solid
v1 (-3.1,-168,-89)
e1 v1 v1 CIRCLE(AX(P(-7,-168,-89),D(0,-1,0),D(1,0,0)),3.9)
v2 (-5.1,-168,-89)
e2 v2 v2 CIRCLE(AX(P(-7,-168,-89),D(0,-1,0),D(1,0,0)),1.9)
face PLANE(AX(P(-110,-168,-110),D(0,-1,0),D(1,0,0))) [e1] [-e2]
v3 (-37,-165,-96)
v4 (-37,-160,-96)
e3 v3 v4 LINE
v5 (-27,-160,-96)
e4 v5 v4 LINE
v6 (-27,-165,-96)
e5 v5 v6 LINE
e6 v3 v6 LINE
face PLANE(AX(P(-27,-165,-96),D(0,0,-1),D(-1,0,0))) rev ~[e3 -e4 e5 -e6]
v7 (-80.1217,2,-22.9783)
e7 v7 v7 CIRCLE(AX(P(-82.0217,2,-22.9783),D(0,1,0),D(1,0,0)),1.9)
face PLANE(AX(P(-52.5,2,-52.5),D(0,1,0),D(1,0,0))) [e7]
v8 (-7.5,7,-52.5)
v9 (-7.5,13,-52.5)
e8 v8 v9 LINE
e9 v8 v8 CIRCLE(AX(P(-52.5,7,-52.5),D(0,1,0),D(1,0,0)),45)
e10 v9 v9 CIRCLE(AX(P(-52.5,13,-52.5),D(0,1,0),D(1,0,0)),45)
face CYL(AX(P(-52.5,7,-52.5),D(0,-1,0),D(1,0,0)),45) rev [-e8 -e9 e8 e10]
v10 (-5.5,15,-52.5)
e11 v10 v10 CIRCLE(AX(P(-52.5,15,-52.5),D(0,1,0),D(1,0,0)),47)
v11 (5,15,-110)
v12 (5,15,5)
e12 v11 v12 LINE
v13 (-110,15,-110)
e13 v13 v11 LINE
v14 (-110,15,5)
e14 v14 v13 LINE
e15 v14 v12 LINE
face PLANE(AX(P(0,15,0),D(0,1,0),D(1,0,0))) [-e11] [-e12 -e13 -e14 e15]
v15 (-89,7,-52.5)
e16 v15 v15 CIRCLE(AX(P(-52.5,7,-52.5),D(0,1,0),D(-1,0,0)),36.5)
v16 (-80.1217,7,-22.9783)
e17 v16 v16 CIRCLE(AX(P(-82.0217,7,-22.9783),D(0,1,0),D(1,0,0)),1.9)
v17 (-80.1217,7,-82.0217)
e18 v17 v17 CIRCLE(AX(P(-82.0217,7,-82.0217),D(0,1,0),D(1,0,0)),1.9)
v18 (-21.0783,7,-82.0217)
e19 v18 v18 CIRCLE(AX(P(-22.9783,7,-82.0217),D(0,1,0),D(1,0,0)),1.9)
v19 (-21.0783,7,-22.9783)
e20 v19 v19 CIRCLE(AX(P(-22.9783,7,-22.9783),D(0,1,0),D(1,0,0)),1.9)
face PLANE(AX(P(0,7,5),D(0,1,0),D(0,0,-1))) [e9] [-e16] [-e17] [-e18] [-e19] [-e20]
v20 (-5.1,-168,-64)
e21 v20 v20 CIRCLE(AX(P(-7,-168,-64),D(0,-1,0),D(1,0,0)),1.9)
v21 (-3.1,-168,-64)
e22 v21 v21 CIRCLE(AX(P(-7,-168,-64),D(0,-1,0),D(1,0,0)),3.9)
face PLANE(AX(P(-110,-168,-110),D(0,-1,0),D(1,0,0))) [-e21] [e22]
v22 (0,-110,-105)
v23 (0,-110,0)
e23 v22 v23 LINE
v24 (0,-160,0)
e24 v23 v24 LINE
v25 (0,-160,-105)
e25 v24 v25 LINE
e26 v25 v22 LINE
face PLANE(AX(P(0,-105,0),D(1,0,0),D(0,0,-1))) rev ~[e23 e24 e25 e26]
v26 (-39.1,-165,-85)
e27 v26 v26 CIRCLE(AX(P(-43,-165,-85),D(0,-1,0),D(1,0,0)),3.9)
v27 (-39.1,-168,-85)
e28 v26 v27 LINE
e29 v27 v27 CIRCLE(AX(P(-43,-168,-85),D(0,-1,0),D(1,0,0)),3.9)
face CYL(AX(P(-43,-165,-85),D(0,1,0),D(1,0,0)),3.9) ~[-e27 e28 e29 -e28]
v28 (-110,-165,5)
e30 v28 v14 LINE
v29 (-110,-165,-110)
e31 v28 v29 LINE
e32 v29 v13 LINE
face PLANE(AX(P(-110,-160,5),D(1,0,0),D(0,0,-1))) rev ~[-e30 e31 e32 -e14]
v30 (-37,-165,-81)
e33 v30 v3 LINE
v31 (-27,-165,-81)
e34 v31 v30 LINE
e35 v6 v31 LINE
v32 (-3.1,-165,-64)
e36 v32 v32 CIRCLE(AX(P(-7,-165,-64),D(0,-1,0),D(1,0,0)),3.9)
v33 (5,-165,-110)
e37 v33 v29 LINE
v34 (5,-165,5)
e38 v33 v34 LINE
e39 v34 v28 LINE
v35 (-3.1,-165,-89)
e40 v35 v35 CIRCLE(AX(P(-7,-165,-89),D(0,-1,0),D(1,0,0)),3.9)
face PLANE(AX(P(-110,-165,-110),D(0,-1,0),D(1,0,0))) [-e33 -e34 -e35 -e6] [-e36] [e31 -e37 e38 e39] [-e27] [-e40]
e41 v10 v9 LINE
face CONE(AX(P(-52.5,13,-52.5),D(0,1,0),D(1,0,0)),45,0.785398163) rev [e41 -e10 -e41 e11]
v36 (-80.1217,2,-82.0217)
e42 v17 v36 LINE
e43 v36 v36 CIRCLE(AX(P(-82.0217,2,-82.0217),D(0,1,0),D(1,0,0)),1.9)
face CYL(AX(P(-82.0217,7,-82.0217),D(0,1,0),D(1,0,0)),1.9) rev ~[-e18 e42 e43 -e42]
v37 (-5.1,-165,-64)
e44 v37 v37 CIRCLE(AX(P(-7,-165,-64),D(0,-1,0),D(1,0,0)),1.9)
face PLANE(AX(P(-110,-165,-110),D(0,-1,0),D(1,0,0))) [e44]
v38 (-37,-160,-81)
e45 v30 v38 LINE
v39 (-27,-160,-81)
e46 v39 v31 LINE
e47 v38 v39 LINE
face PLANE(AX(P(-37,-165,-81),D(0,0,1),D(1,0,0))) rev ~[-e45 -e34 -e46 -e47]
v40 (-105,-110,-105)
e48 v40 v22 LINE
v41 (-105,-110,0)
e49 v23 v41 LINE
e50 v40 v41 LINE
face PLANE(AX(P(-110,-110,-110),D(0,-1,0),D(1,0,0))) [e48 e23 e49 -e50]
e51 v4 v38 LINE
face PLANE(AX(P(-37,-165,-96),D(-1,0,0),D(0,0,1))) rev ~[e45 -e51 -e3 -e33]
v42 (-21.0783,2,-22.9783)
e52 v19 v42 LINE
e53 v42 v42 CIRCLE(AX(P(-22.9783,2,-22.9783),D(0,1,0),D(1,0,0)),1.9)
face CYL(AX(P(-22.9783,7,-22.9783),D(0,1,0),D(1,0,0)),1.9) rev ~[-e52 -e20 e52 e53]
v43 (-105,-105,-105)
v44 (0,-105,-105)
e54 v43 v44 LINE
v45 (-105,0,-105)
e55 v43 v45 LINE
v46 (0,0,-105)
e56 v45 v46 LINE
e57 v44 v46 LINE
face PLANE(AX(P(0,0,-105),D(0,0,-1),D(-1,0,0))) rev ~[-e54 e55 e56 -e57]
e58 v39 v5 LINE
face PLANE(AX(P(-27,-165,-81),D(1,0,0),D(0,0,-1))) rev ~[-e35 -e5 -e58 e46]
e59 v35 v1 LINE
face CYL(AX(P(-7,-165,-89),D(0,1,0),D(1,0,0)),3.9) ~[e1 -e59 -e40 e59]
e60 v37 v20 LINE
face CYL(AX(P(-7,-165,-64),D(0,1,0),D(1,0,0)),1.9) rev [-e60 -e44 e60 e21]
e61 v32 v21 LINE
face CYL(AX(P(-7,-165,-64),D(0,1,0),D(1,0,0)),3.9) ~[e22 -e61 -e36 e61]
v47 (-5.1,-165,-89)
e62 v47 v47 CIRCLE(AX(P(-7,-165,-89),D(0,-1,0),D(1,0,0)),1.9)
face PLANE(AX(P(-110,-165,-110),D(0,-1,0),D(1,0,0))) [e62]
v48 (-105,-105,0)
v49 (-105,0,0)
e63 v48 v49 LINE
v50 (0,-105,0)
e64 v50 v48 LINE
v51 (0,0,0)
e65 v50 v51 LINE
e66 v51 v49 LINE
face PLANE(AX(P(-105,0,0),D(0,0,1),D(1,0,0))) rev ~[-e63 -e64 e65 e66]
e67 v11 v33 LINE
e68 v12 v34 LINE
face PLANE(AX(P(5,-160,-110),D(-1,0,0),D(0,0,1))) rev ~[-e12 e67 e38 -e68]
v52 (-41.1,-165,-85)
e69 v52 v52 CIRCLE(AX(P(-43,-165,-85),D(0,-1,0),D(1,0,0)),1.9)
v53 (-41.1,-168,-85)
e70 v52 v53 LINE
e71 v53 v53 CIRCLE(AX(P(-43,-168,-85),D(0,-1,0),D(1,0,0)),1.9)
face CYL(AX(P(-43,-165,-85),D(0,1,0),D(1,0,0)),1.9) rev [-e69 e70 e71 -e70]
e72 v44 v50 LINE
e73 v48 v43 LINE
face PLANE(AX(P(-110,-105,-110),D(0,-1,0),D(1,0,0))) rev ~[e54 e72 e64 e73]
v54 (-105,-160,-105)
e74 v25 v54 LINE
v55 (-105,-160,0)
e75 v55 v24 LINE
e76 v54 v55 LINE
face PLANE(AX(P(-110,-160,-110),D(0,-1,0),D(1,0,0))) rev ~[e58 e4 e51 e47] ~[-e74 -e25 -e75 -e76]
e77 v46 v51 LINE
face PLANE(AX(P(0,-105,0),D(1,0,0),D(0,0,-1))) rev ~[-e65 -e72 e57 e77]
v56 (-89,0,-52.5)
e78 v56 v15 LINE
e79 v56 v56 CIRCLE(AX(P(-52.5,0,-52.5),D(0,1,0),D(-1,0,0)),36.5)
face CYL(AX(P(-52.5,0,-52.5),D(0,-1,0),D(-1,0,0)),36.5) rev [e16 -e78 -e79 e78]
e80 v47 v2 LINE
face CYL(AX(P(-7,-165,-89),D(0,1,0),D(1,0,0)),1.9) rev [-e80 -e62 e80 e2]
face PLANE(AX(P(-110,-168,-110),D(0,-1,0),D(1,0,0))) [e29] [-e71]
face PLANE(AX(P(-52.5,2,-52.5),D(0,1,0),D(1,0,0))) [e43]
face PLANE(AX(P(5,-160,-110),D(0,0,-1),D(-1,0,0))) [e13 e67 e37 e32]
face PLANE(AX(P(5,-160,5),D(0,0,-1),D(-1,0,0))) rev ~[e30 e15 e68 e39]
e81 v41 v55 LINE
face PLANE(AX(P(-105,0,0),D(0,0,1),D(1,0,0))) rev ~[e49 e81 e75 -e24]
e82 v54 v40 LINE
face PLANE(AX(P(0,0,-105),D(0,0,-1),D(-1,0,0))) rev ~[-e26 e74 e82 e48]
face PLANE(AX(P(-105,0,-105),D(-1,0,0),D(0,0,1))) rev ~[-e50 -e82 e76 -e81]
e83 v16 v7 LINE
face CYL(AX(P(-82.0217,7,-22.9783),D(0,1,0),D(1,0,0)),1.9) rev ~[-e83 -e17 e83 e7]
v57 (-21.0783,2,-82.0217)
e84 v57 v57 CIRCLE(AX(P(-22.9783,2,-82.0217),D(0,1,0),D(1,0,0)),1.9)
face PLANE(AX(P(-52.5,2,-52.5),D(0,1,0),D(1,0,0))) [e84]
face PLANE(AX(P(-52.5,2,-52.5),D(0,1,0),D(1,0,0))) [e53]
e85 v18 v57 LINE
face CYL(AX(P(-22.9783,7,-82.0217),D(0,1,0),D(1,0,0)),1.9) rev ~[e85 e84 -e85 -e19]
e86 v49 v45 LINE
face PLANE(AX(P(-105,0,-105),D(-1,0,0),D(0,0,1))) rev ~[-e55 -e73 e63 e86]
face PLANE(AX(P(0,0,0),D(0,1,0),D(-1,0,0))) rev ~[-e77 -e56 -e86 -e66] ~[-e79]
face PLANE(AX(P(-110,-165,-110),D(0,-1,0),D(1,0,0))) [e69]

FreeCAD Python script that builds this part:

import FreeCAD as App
import Part
import Sketcher

V = App.Vector
Q = App.Units.Quantity


def edges_at(feature, points):
    """Names of the edges that pass closest to the given points."""
    edges = feature.Shape.Edges
    near = lambda p: min(range(len(edges)), key=lambda i: edges[i].distToShape(Part.Vertex(*p))[0])
    return sorted({f"Edge{near(p) + 1}" for p in points})


def add_polygon(sketch, points):
    """Adds a closed chain of lines whose ends are joined by coincident constraints."""
    first, n = sketch.GeometryCount, len(points)
    for a, b in zip(points, points[1:] + points[:1]):
        sketch.addGeometry(Part.LineSegment(App.Vector(*a, 0), App.Vector(*b, 0)), False)
    for i in range(n):
        sketch.addConstraint(Sketcher.Constraint("Coincident", first + i, 2, first + (i + 1) % n, 1))

doc = App.newDocument("Part")
body = doc.addObject("PartDesign::Body", "Body")

# Sketch on XZ plane
sketch1 = body.newObject("Sketcher::SketchObject", "Sketch")
sketch1.AttachmentSupport = (doc.getObject("XZ_Plane"), [""])
sketch1.MapMode = "FlatFace"
add_polygon(sketch1, [(-105, 0), (0, 0), (0, -105), (-105, -105)])  # lines 0-3
sketch1.addGeometry(Part.Circle(V(-52, -52, 0), V(0, 0, 1), 36), False)  # 4
sketch1.addConstraint([
    Sketcher.Constraint("Horizontal", 0),
    Sketcher.Constraint("Vertical", 1),
    Sketcher.Constraint("Horizontal", 2),
    Sketcher.Constraint("Vertical", 3),
    Sketcher.Constraint("Coincident", 0, 2, -1, 1),
    Sketcher.Constraint("Equal", 2, 1),
    Sketcher.Constraint("Diameter", 4, Q("73 mm")),
    Sketcher.Constraint("DistanceX", 0, 1, 0, 2, Q("105 mm")),
    Sketcher.Constraint("DistanceX", 4, 3, -1, 1, Q("52.5 mm")),
    Sketcher.Constraint("DistanceY", 4, 3, -1, 1, Q("52.5 mm")),
])
pad1 = body.newObject("PartDesign::Pad", "Pad")
pad1.Profile = sketch1
pad1.Length = 7
pad1.Reversed = True

# Sketch on XY plane
sketch2 = body.newObject("Sketcher::SketchObject", "Sketch001")
sketch2.AttachmentSupport = (doc.getObject("XY_Plane"), [""])
sketch2.MapMode = "FlatFace"
add_polygon(sketch2, [(0, 7), (-105, 7), (-105, -105), (0, -105)])  # lines 0-3
sketch2.addConstraint([
    Sketcher.Constraint("Horizontal", 0),
    Sketcher.Constraint("Vertical", 1),
    Sketcher.Constraint("Horizontal", 2),
    Sketcher.Constraint("Vertical", 3),
    Sketcher.Constraint("PointOnObject", 2, 2, -2),
    Sketcher.Constraint("DistanceX", 0, 2, 0, 1, Q("105 mm")),
    Sketcher.Constraint("DistanceY", 1, 2, -1, 1, Q("105 mm")),
    Sketcher.Constraint("DistanceY", 1, 2, 1, 1, Q("112 mm")),
])
pad2 = body.newObject("PartDesign::Pad", "Pad001")
pad2.Profile = sketch2
pad2.Length = 5

# Sketch on YZ plane
sketch3 = body.newObject("Sketcher::SketchObject", "Sketch002")
sketch3.AttachmentSupport = (doc.getObject("YZ_Plane"), [""])
sketch3.MapMode = "FlatFace"
sketch3.AttachmentOffset = App.Placement(V(0, 0, -105), App.Rotation())
add_polygon(sketch3, [(7, -105), (-105, -105), (-105, 5), (7, 5)])  # lines 0-3
sketch3.addConstraint([
    Sketcher.Constraint("Horizontal", 0),
    Sketcher.Constraint("Vertical", 1),
    Sketcher.Constraint("Horizontal", 2),
    Sketcher.Constraint("Vertical", 3),
    Sketcher.Constraint("DistanceX", 0, 2, 0, 1, Q("112 mm")),
    Sketcher.Constraint("DistanceY", 1, 1, 1, 2, Q("110 mm")),
    Sketcher.Constraint("DistanceX", 0, 2, -1, 1, Q("105 mm")),
    Sketcher.Constraint("DistanceY", 0, 2, -1, 1, Q("105 mm")),
])
pad3 = body.newObject("PartDesign::Pad", "Pad002")
pad3.Profile = sketch3
pad3.Length = 5
pad3.Reversed = True

# Sketch on XY plane
sketch4 = body.newObject("Sketcher::SketchObject", "Sketch003")
sketch4.AttachmentSupport = (doc.getObject("XY_Plane"), [""])
sketch4.MapMode = "FlatFace"
sketch4.AttachmentOffset = App.Placement(V(0, 0, -105), App.Rotation())
add_polygon(sketch4, [(-110, 7), (0, 7), (0, -105), (-110, -105)])  # lines 0-3
sketch4.addConstraint([
    Sketcher.Constraint("Horizontal", 0),
    Sketcher.Constraint("Vertical", 1),
    Sketcher.Constraint("Horizontal", 2),
    Sketcher.Constraint("Vertical", 3),
    Sketcher.Constraint("PointOnObject", 0, 2, -2),
    Sketcher.Constraint("DistanceX", 0, 1, 0, 2, Q("110 mm")),
    Sketcher.Constraint("DistanceY", 1, 2, 1, 1, Q("112 mm")),
    Sketcher.Constraint("DistanceY", -1, 1, 0, 2, Q("7 mm")),
])
pad4 = body.newObject("PartDesign::Pad", "Pad003")
pad4.Profile = sketch4
pad4.Length = 5
pad4.Reversed = True

# Sketch on YZ plane
sketch5 = body.newObject("Sketcher::SketchObject", "Sketch004")
sketch5.AttachmentSupport = (doc.getObject("YZ_Plane"), [""])
sketch5.MapMode = "FlatFace"
add_polygon(sketch5, [(7, 5), (-105, 5), (-105, -110), (7, -110)])  # lines 0-3
sketch5.addConstraint([
    Sketcher.Constraint("Horizontal", 0),
    Sketcher.Constraint("Vertical", 1),
    Sketcher.Constraint("Horizontal", 2),
    Sketcher.Constraint("Vertical", 3),
    Sketcher.Constraint("DistanceX", 0, 2, 0, 1, Q("112 mm")),
    Sketcher.Constraint("DistanceY", 1, 2, 1, 1, Q("115 mm")),
    Sketcher.Constraint("DistanceX", 0, 2, -1, 1, Q("105 mm")),
    Sketcher.Constraint("DistanceY", -1, 1, 0, 2, Q("5 mm")),
])
pad5 = body.newObject("PartDesign::Pad", "Pad004")
pad5.Profile = sketch5
pad5.Length = 5

# Sketch on XZ plane
sketch6 = body.newObject("Sketcher::SketchObject", "Sketch005")
sketch6.AttachmentSupport = (doc.getObject("XZ_Plane"), [""])
sketch6.MapMode = "FlatFace"
sketch6.AttachmentOffset = App.Placement(V(0, 0, 105), App.Rotation())
add_polygon(sketch6, [(5, 5), (-110, 5), (-110, -110), (5, -110)])  # lines 0-3
sketch6.addConstraint([
    Sketcher.Constraint("Horizontal", 0),
    Sketcher.Constraint("Vertical", 1),
    Sketcher.Constraint("Horizontal", 2),
    Sketcher.Constraint("Vertical", 3),
    Sketcher.Constraint("Equal", 2, 1),
    Sketcher.Constraint("DistanceX", 0, 2, 0, 1, Q("115 mm")),
    Sketcher.Constraint("DistanceX", 0, 2, -1, 1, Q("110 mm")),
    Sketcher.Constraint("DistanceY", -1, 1, 0, 2, Q("5 mm")),
])
pad6 = body.newObject("PartDesign::Pad", "Pad005")
pad6.Profile = sketch6
pad6.Length = 5

# Sketch on XZ plane
sketch7 = body.newObject("Sketcher::SketchObject", "Sketch006")
sketch7.AttachmentSupport = (doc.getObject("XZ_Plane"), [""])
sketch7.MapMode = "FlatFace"
sketch7.AttachmentOffset = App.Placement(V(0, 0, -7), App.Rotation())
add_polygon(sketch7, [(-110, -110), (-110, 5), (5, 5), (5, -110)])  # lines 0-3
sketch7.addGeometry(Part.Circle(V(-52, -52, 0), V(0, 0, 1), 45), False)  # 4
sketch7.addConstraint([
    Sketcher.Constraint("Vertical", 0),
    Sketcher.Constraint("Horizontal", 1),
    Sketcher.Constraint("Vertical", 2),
    Sketcher.Constraint("Horizontal", 3),
    Sketcher.Constraint("Equal", 3, 0),
    Sketcher.Constraint("Diameter", 4, Q("90 mm")),
    Sketcher.Constraint("DistanceX", 1, 1, 1, 2, Q("115 mm")),
    Sketcher.Constraint("DistanceX", 0, 2, -1, 1, Q("110 mm")),
    Sketcher.Constraint("DistanceY", -1, 1, 0, 2, Q("5 mm")),
    Sketcher.Constraint("DistanceX", 4, 3, -1, 1, Q("52.5 mm")),
    Sketcher.Constraint("DistanceY", 4, 3, -1, 1, Q("52.5 mm")),
])
pad7 = body.newObject("PartDesign::Pad", "Pad006")
pad7.Profile = sketch7
pad7.Length = 8
pad7.Reversed = True

# Sketch on XZ plane
sketch8 = body.newObject("Sketcher::SketchObject", "Sketch007")
sketch8.AttachmentSupport = (doc.getObject("XZ_Plane"), [""])
sketch8.MapMode = "FlatFace"
sketch8.AttachmentOffset = App.Placement(V(0, 0, -7), App.Rotation())
sketch8.addGeometry([
    Part.Circle(V(-82, -23, 0), V(0, 0, 1), 1.9),
    Part.Circle(V(-82, -82, 0), V(0, 0, 1), 1.9),
    Part.Circle(V(-23, -82, 0), V(0, 0, 1), 1.9),
    Part.Circle(V(-23, -23, 0), V(0, 0, 1), 1.9),
], False)
sketch8.addConstraint([
    Sketcher.Constraint("Equal", 0, 1),
    Sketcher.Constraint("Equal", 1, 2),
    Sketcher.Constraint("Equal", 2, 3),
    Sketcher.Constraint("Horizontal", 1, 3, 2, 3),
    Sketcher.Constraint("Horizontal", 0, 3, 3, 3),
    Sketcher.Constraint("Vertical", 0, 3, 1, 3),
    Sketcher.Constraint("Vertical", 2, 3, 3, 3),
    Sketcher.Constraint("Diameter", 0, Q("3.8 mm")),
    Sketcher.Constraint("DistanceX", 0, 3, -1, 1, Q("82.0217 mm")),
    Sketcher.Constraint("DistanceY", 0, 3, -1, 1, Q("22.9783 mm")),
    Sketcher.Constraint("DistanceY", 1, 3, -1, 1, Q("82.0217 mm")),
    Sketcher.Constraint("DistanceX", 2, 3, -1, 1, Q("22.9783 mm")),
])
pocket1 = body.newObject("PartDesign::Pocket", "Pocket")
pocket1.Profile = sketch8
pocket1.Length = 5
pocket1.Reversed = True
doc.recompute()

chamfer = body.newObject("PartDesign::Chamfer", "Chamfer")
chamfer.Base = (pocket1, edges_at(pocket1, [(-97.5, 15, -52.5)]))
chamfer.Size = 2

# Sketch on XY plane
sketch9 = body.newObject("Sketcher::SketchObject", "Sketch008")
sketch9.AttachmentSupport = (doc.getObject("XY_Plane"), [""])
sketch9.MapMode = "FlatFace"
sketch9.AttachmentOffset = App.Placement(V(0, 0, -110), App.Rotation())
add_polygon(sketch9, [(-110, -160), (-110, -110), (5, -110), (5, -160)])  # lines 0-3
sketch9.addConstraint([
    Sketcher.Constraint("Vertical", 0),
    Sketcher.Constraint("Horizontal", 1),
    Sketcher.Constraint("Vertical", 2),
    Sketcher.Constraint("Horizontal", 3),
    Sketcher.Constraint("DistanceY", 0, 1, 0, 2, Q("50 mm")),
    Sketcher.Constraint("DistanceX", 1, 1, 1, 2, Q("115 mm")),
    Sketcher.Constraint("DistanceX", 0, 2, -1, 1, Q("110 mm")),
    Sketcher.Constraint("DistanceY", 0, 2, -1, 1, Q("110 mm")),
])
pad8 = body.newObject("PartDesign::Pad", "Pad007")
pad8.Profile = sketch9
pad8.Length = 5

# Sketch on YZ plane
sketch10 = body.newObject("Sketcher::SketchObject", "Sketch009")
sketch10.AttachmentSupport = (doc.getObject("YZ_Plane"), [""])
sketch10.MapMode = "FlatFace"
sketch10.AttachmentOffset = App.Placement(V(0, 0, 5), App.Rotation())
add_polygon(sketch10, [(-160, -105), (-110, -105), (-110, 5), (-160, 5)])  # lines 0-3
sketch10.addConstraint([
    Sketcher.Constraint("Horizontal", 0),
    Sketcher.Constraint("Vertical", 1),
    Sketcher.Constraint("Horizontal", 2),
    Sketcher.Constraint("Vertical", 3),
    Sketcher.Constraint("DistanceX", 0, 1, 0, 2, Q("50 mm")),
    Sketcher.Constraint("DistanceY", 1, 1, 1, 2, Q("110 mm")),
    Sketcher.Constraint("DistanceX", 0, 2, -1, 1, Q("110 mm")),
    Sketcher.Constraint("DistanceY", 0, 2, -1, 1, Q("105 mm")),
])
pad9 = body.newObject("PartDesign::Pad", "Pad008")
pad9.Profile = sketch10
pad9.Length = 5
pad9.Reversed = True

# Sketch on XY plane
sketch11 = body.newObject("Sketcher::SketchObject", "Sketch010")
sketch11.AttachmentSupport = (doc.getObject("XY_Plane"), [""])
sketch11.MapMode = "FlatFace"
sketch11.AttachmentOffset = App.Placement(V(0, 0, 5), App.Rotation())
add_polygon(sketch11, [(0, -160), (0, -110), (-110, -110), (-110, -160)])  # lines 0-3
sketch11.addConstraint([
    Sketcher.Constraint("Vertical", 0),
    Sketcher.Constraint("Horizontal", 1),
    Sketcher.Constraint("Vertical", 2),
    Sketcher.Constraint("Horizontal", 3),
    Sketcher.Constraint("PointOnObject", 0, 2, -2),
    Sketcher.Constraint("DistanceX", 1, 2, 1, 1, Q("110 mm")),
    Sketcher.Constraint("DistanceY", 0, 1, 0, 2, Q("50 mm")),
    Sketcher.Constraint("DistanceY", 0, 2, -1, 1, Q("110 mm")),
])
pad10 = body.newObject("PartDesign::Pad", "Pad009")
pad10.Profile = sketch11
pad10.Length = 5
pad10.Reversed = True

# Sketch on YZ plane
sketch12 = body.newObject("Sketcher::SketchObject", "Sketch011")
sketch12.AttachmentSupport = (doc.getObject("YZ_Plane"), [""])
sketch12.MapMode = "FlatFace"
sketch12.AttachmentOffset = App.Placement(V(0, 0, -110), App.Rotation())
add_polygon(sketch12, [(-110, -105), (-160, -105), (-160, 0), (-110, 0)])  # lines 0-3
sketch12.addConstraint([
    Sketcher.Constraint("Horizontal", 0),
    Sketcher.Constraint("Vertical", 1),
    Sketcher.Constraint("Horizontal", 2),
    Sketcher.Constraint("Vertical", 3),
    Sketcher.Constraint("PointOnObject", 1, 2, -1),
    Sketcher.Constraint("DistanceX", 0, 2, 0, 1, Q("50 mm")),
    Sketcher.Constraint("DistanceY", 1, 1, 1, 2, Q("105 mm")),
    Sketcher.Constraint("DistanceX", 0, 2, -1, 1, Q("160 mm")),
])
pad11 = body.newObject("PartDesign::Pad", "Pad010")
pad11.Profile = sketch12
pad11.Length = 5

# Sketch on XZ plane
sketch13 = body.newObject("Sketcher::SketchObject", "Sketch012")
sketch13.AttachmentSupport = (doc.getObject("XZ_Plane"), [""])
sketch13.MapMode = "FlatFace"
sketch13.AttachmentOffset = App.Placement(V(0, 0, 160), App.Rotation())
add_polygon(sketch13, [(-110, -110), (5, -110), (5, 5), (-110, 5)])  # lines 0-3
sketch13.addConstraint([
    Sketcher.Constraint("Horizontal", 0),
    Sketcher.Constraint("Vertical", 1),
    Sketcher.Constraint("Horizontal", 2),
    Sketcher.Constraint("Vertical", 3),
    Sketcher.Constraint("Equal", 2, 1),
    Sketcher.Constraint("DistanceX", 0, 1, 0, 2, Q("115 mm")),
    Sketcher.Constraint("DistanceX", -1, 1, 0, 2, Q("5 mm")),
    Sketcher.Constraint("DistanceY", 0, 2, -1, 1, Q("110 mm")),
])
pad12 = body.newObject("PartDesign::Pad", "Pad011")
pad12.Profile = sketch13
pad12.Length = 5

# Sketch on XZ plane
sketch14 = body.newObject("Sketcher::SketchObject", "Sketch013")
sketch14.AttachmentSupport = (doc.getObject("XZ_Plane"), [""])
sketch14.MapMode = "FlatFace"
sketch14.AttachmentOffset = App.Placement(V(0, 0, 165), App.Rotation())
sketch14.addGeometry([
    Part.Circle(V(-7, -64, 0), V(0, 0, 1), 3.9),  # 0
    Part.Circle(V(-7, -64, 0), V(0, 0, 1), 1.9),  # 1
    Part.Circle(V(-43, -85, 0), V(0, 0, 1), 3.9),  # 2
    Part.Circle(V(-43, -85, 0), V(0, 0, 1), 1.9),  # 3
    Part.Circle(V(-7, -89, 0), V(0, 0, 1), 3.9),  # 4
    Part.Circle(V(-7, -89, 0), V(0, 0, 1), 1.9),  # 5
], False)
sketch14.addConstraint([
    Sketcher.Constraint("Coincident", 1, 3, 0, 3),
    Sketcher.Constraint("Coincident", 3, 3, 2, 3),
    Sketcher.Constraint("Coincident", 5, 3, 4, 3),
    Sketcher.Constraint("Equal", 0, 2),
    Sketcher.Constraint("Equal", 1, 3),
    Sketcher.Constraint("Equal", 2, 4),
    Sketcher.Constraint("Equal", 3, 5),
    Sketcher.Constraint("Vertical", 1, 3, 4, 3),
    Sketcher.Constraint("Diameter", 1, Q("3.8 mm")),
    Sketcher.Constraint("DistanceY", 4, 3, 0, 3, Q("25 mm")),
    Sketcher.Constraint("DistanceY", 4, 3, 2, 3, Q("4 mm")),
    Sketcher.Constraint("Diameter", 0, Q("7.8 mm")),
    Sketcher.Constraint("DistanceX", 0, 3, -1, 1, Q("7 mm")),
    Sketcher.Constraint("DistanceY", 0, 3, -1, 1, Q("64 mm")),
    Sketcher.Constraint("DistanceX", 2, 3, -1, 1, Q("43 mm")),
])
pad13 = body.newObject("PartDesign::Pad", "Pad012")
pad13.Profile = sketch14
pad13.Length = 3

# Sketch on XZ plane
sketch15 = body.newObject("Sketcher::SketchObject", "Sketch014")
sketch15.AttachmentSupport = (doc.getObject("XZ_Plane"), [""])
sketch15.MapMode = "FlatFace"
sketch15.AttachmentOffset = App.Placement(V(0, 0, 165), App.Rotation())
add_polygon(sketch15, [(-37, -96), (-27, -96), (-27, -81), (-37, -81)])  # lines 0-3
sketch15.addConstraint([
    Sketcher.Constraint("Horizontal", 0),
    Sketcher.Constraint("Vertical", 1),
    Sketcher.Constraint("Horizontal", 2),
    Sketcher.Constraint("Vertical", 3),
    Sketcher.Constraint("DistanceX", 0, 1, 0, 2, Q("10 mm")),
    Sketcher.Constraint("DistanceY", 1, 1, 1, 2, Q("15 mm")),
    Sketcher.Constraint("DistanceX", 0, 2, -1, 1, Q("27 mm")),
    Sketcher.Constraint("DistanceY", 0, 2, -1, 1, Q("96 mm")),
])
pocket2 = body.newObject("PartDesign::Pocket", "Pocket001")
pocket2.Profile = sketch15
pocket2.Type = "TwoLengths"
pocket2.Length = 3
pocket2.Length2 = 5
pocket2.Reversed = True

doc.recompute()
